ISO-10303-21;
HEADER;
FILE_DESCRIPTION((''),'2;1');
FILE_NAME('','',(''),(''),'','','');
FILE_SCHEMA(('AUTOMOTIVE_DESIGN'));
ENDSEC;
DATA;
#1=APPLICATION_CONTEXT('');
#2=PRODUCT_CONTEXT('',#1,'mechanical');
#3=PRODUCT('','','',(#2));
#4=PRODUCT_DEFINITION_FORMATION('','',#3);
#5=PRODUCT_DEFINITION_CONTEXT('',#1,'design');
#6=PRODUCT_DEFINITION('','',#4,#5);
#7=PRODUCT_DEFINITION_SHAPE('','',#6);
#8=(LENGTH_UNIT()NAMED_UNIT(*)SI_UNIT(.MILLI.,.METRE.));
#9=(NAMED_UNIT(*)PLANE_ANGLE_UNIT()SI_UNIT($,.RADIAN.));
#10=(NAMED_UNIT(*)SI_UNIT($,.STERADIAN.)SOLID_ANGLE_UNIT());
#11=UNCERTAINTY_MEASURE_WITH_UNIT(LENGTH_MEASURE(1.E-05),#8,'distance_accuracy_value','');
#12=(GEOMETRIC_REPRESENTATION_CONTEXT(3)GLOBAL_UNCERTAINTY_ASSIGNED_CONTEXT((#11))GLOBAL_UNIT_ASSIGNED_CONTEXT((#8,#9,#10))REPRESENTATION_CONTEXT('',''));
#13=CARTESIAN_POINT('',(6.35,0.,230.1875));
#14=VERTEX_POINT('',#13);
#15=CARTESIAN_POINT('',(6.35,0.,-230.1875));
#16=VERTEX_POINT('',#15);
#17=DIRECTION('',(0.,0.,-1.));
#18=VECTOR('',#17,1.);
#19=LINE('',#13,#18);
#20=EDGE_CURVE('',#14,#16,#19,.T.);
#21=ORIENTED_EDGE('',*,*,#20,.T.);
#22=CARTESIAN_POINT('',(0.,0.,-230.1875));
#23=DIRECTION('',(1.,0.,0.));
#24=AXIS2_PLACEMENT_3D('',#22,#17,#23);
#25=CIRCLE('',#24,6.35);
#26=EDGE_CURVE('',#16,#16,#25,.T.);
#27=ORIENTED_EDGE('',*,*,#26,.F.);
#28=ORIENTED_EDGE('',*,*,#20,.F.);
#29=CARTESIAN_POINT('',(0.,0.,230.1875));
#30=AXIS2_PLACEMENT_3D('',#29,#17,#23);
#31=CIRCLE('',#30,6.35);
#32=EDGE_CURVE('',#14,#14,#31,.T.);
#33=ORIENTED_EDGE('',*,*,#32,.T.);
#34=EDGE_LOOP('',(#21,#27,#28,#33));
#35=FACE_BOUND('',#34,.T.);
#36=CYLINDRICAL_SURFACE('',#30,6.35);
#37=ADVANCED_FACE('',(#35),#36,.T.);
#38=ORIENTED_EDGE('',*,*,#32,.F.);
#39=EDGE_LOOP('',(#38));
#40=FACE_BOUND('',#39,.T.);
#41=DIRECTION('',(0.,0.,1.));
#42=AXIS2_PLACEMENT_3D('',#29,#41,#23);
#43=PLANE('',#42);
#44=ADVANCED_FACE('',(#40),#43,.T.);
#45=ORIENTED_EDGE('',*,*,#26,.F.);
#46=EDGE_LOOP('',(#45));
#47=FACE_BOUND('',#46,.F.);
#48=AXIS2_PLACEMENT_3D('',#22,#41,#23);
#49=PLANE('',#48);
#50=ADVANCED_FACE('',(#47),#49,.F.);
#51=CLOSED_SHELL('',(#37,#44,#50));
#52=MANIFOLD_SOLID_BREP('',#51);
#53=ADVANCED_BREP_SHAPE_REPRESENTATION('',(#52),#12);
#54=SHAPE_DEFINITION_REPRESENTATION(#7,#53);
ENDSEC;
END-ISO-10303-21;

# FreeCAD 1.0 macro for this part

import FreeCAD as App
import Part
import Sketcher

V = App.Vector
Q = App.Units.Quantity

doc = App.newDocument("Part")
params = doc.addObject("Spreadsheet::Sheet", "Params")
for row, (alias, value) in enumerate([
    ("sketch1_diameter", "0.5 in"),
    ("sketch2_height", "18.125 in"),
], start=1):
    params.set(f"A{row}", alias)
    params.set(f"B{row}", "=" + value)
    params.setAlias(f"B{row}", alias)

body = doc.addObject("PartDesign::Body", "Body")

# Sketch on XY plane
sketch1 = body.newObject("Sketcher::SketchObject", "Sketch")
sketch1.AttachmentSupport = (doc.getObject("XY_Plane"), [""])
sketch1.MapMode = "FlatFace"
sketch1.AttachmentOffset = App.Placement(V(0, 0, 9.0625 * 25.4), App.Rotation())
sketch1.addGeometry(Part.Circle(V(0, 0, 0), V(0, 0, 1), 6.35), False)
sketch1.addConstraint([
    Sketcher.Constraint("Coincident", 0, 3, -1, 1),
    Sketcher.Constraint("Diameter", 0, Q("0.5 in")),
])
sketch1.setExpression("Constraints[1]", "Params.sketch1_diameter")

# Sketch on XZ plane
sketch2 = body.newObject("Sketcher::SketchObject", "Sketch001")
sketch2.AttachmentSupport = (doc.getObject("XZ_Plane"), [""])
sketch2.MapMode = "FlatFace"
sketch2.addGeometry(Part.LineSegment(V(0, 230.1875, 0), V(0, -230.1875, 0)), False)
sketch2.addConstraint([
    Sketcher.Constraint("Vertical", 0),
    Sketcher.Constraint("Symmetric", 0, 1, 0, 2, -1, 1),
    Sketcher.Constraint("DistanceY", 0, 2, 0, 1, Q("18.125 in")),
])
sketch2.setExpression("Constraints[2]", "Params.sketch2_height")
doc.recompute()

additivepipe = body.newObject("PartDesign::AdditivePipe", "AdditivePipe")
additivepipe.Profile = sketch1
additivepipe.Spine = (sketch2, ["Edge1"])

doc.recompute()
